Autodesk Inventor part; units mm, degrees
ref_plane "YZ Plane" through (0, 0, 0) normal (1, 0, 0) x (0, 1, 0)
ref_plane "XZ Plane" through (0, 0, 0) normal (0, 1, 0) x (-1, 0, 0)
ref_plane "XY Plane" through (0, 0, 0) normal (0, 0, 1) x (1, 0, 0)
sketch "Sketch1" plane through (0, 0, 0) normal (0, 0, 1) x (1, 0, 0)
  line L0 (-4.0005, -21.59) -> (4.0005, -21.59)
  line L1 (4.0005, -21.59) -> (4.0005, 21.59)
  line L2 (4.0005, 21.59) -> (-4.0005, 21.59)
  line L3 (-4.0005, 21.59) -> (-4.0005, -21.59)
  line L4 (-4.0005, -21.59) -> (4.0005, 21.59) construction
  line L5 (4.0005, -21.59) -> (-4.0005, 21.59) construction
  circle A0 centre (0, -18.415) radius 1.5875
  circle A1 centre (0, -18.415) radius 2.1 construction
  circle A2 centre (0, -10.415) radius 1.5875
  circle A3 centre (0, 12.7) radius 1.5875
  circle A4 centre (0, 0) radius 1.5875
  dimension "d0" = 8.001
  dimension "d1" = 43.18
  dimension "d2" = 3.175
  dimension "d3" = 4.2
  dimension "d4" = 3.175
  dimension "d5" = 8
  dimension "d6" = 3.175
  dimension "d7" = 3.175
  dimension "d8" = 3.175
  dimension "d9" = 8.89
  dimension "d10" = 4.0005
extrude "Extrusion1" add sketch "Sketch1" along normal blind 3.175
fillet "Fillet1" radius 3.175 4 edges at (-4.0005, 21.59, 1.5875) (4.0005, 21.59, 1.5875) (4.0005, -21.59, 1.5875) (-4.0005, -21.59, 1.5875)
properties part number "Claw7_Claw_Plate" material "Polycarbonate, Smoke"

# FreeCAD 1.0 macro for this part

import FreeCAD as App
import Part
import Sketcher

V = App.Vector
Q = App.Units.Quantity


def edges_at(feature, points):
    """Names of the edges that pass closest to the given points."""
    edges = feature.Shape.Edges
    near = lambda p: min(range(len(edges)), key=lambda i: edges[i].distToShape(Part.Vertex(*p))[0])
    return sorted({f"Edge{near(p) + 1}" for p in points})


def add_polygon(sketch, points):
    """Adds a closed chain of lines whose ends are joined by coincident constraints."""
    first, n = sketch.GeometryCount, len(points)
    for a, b in zip(points, points[1:] + points[:1]):
        sketch.addGeometry(Part.LineSegment(App.Vector(*a, 0), App.Vector(*b, 0)), False)
    for i in range(n):
        sketch.addConstraint(Sketcher.Constraint("Coincident", first + i, 2, first + (i + 1) % n, 1))

doc = App.newDocument("Part")
body = doc.addObject("PartDesign::Body", "Body")

# Sketch on XY plane
sketch1 = doc.addObject("Sketcher::SketchObject", "Sketch")
body.addObject(sketch1)
sketch1.AttachmentSupport = (doc.XY_Plane, [""])
sketch1.MapMode = "FlatFace"
add_polygon(sketch1, [(-4, 21.6), (-4, -21.6), (4, -21.6), (4, 21.6)])  # lines 0-3
sketch1.addGeometry(Part.Circle(V(0, -18.4, 0), V(0, 0, 1), 1.6), False)  # 4
sketch1.addGeometry(Part.Circle(V(0, -10.4, 0), V(0, 0, 1), 1.6), False)  # 5
sketch1.addGeometry(Part.Circle(V(0, 0, 0), V(0, 0, 1), 1.6), False)  # 6
sketch1.addGeometry(Part.Circle(V(0, 12.7, 0), V(0, 0, 1), 1.6), False)  # 7
sketch1.addConstraint([
    Sketcher.Constraint("Vertical", 0),
    Sketcher.Constraint("Horizontal", 1),
    Sketcher.Constraint("Vertical", 2),
    Sketcher.Constraint("Horizontal", 3),
    Sketcher.Constraint("Coincident", 6, 3, -1, 1),
    Sketcher.Constraint("Equal", 4, 5),
    Sketcher.Constraint("Equal", 5, 6),
    Sketcher.Constraint("Equal", 6, 7),
    Sketcher.Constraint("Symmetric", 0, 2, 2, 2, -1, 1),
    Sketcher.Constraint("PointOnObject", 4, 3, -2),
    Sketcher.Constraint("PointOnObject", 5, 3, -2),
    Sketcher.Constraint("PointOnObject", 7, 3, -2),
    Sketcher.Constraint("Diameter", 4, Q("0.125 in")),
    Sketcher.Constraint("DistanceY", 0, 2, 0, 1, Q("1.7 in")),
    Sketcher.Constraint("DistanceX", 1, 1, 1, 2, Q("0.315 in")),
    Sketcher.Constraint("DistanceY", 7, 3, 2, 2, Q("0.35 in")),
    Sketcher.Constraint("DistanceY", 0, 2, 4, 3, Q("0.125 in")),
    Sketcher.Constraint("DistanceY", 4, 3, 5, 3, Q("8 mm")),
])
pad1 = doc.addObject("PartDesign::Pad", "Pad")
body.addObject(pad1)
pad1.Profile = sketch1
pad1.Length = Q("0.125 in")
doc.recompute()

fillet = doc.addObject("PartDesign::Fillet", "Fillet")
body.addObject(fillet)
fillet.Base = (pad1, edges_at(pad1, [
    (-4, 21.59, 1.587),
    (4, 21.59, 1.587),
    (4, -21.59, 1.587),
    (-4, -21.59, 1.587),
]))
fillet.Radius = Q("0.125 in")

doc.recompute()
